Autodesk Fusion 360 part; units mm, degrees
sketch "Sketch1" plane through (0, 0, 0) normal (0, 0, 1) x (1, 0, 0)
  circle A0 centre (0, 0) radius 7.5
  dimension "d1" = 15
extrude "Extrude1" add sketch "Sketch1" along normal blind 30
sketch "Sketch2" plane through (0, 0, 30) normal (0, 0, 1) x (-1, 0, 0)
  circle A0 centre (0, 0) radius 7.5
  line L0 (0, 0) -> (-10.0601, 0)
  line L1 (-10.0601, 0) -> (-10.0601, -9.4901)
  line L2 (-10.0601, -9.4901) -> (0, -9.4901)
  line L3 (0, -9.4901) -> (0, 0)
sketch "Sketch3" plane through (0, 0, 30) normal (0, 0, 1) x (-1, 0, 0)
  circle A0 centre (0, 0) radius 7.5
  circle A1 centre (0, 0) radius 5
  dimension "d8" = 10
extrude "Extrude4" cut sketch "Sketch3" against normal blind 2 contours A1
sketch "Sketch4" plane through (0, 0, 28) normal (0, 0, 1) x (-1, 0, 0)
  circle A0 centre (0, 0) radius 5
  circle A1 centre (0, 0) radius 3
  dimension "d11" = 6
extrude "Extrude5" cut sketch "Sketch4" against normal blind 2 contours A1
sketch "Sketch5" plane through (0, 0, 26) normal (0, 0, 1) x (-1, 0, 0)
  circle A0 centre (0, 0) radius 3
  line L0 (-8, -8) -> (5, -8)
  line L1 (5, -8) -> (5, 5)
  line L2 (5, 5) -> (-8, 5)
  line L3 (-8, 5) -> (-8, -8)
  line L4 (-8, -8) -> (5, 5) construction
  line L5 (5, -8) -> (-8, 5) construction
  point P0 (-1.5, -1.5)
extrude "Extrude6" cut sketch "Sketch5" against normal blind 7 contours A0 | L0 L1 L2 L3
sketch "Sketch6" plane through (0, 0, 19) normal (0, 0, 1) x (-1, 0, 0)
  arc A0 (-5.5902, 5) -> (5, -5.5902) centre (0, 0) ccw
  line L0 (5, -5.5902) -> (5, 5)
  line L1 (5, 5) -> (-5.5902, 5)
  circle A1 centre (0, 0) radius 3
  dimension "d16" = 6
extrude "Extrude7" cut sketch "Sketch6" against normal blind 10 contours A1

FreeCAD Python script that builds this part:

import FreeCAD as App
import Part
import Sketcher

V = App.Vector
Q = App.Units.Quantity

doc = App.newDocument("Part")
body = doc.addObject("PartDesign::Body", "Body")

# Sketch on XY plane
sketch1 = doc.addObject("Sketcher::SketchObject", "Sketch")
body.addObject(sketch1)
sketch1.AttachmentSupport = (doc.XY_Plane, [""])
sketch1.MapMode = "FlatFace"
sketch1.addGeometry(Part.Circle(V(0, 0, 0), V(0, 0, 1), 8), False)
sketch1.addConstraint([
    Sketcher.Constraint("Coincident", 0, 3, -1, 1),
    Sketcher.Constraint("Diameter", 0, Q("15 mm")),
])
pad1 = doc.addObject("PartDesign::Pad", "Pad")
body.addObject(pad1)
pad1.Profile = sketch1
pad1.Length = 30

# Sketch on XY plane
sketch2 = doc.addObject("Sketcher::SketchObject", "Sketch001")
body.addObject(sketch2)
sketch2.AttachmentSupport = (doc.XY_Plane, [""])
sketch2.MapMode = "FlatFace"
sketch2.AttachmentOffset = App.Placement(V(0, 0, 30), App.Rotation())
sketch2.addGeometry(Part.Circle(V(0, 0, 0), V(0, 0, 1), 5), False)
sketch2.addConstraint([
    Sketcher.Constraint("Coincident", 0, 3, -1, 1),
    Sketcher.Constraint("Diameter", 0, Q("10 mm")),
])
pocket1 = doc.addObject("PartDesign::Pocket", "Pocket")
body.addObject(pocket1)
pocket1.Profile = sketch2
pocket1.Length = 2

# Sketch on XY plane
sketch3 = doc.addObject("Sketcher::SketchObject", "Sketch002")
body.addObject(sketch3)
sketch3.AttachmentSupport = (doc.XY_Plane, [""])
sketch3.MapMode = "FlatFace"
sketch3.AttachmentOffset = App.Placement(V(0, 0, 28), App.Rotation())
sketch3.addGeometry(Part.Circle(V(0, 0, 0), V(0, 0, 1), 3), False)
sketch3.addConstraint([
    Sketcher.Constraint("Coincident", 0, 3, -1, 1),
    Sketcher.Constraint("Diameter", 0, Q("6 mm")),
])
pocket2 = doc.addObject("PartDesign::Pocket", "Pocket001")
body.addObject(pocket2)
pocket2.Profile = sketch3
pocket2.Length = 2

# Sketch on XY plane
sketch4 = doc.addObject("Sketcher::SketchObject", "Sketch003")
body.addObject(sketch4)
sketch4.AttachmentSupport = (doc.XY_Plane, [""])
sketch4.MapMode = "FlatFace"
sketch4.AttachmentOffset = App.Placement(V(0, 0, 26), App.Rotation())
sketch4.addGeometry([
    Part.LineSegment(V(8, -5, 0), V(8, 8, 0)),
    Part.LineSegment(V(8, 8, 0), V(-5, 8, 0)),
    Part.LineSegment(V(-5, 8, 0), V(-5, -5, 0)),
    Part.LineSegment(V(-5, -5, 0), V(8, -5, 0)),
], False)
sketch4.addConstraint([
    Sketcher.Constraint("Coincident", 0, 2, 1, 1),
    Sketcher.Constraint("Coincident", 1, 2, 2, 1),
    Sketcher.Constraint("Coincident", 2, 2, 3, 1),
    Sketcher.Constraint("Coincident", 3, 2, 0, 1),
    Sketcher.Constraint("Vertical", 0),
    Sketcher.Constraint("Horizontal", 1),
    Sketcher.Constraint("Vertical", 2),
    Sketcher.Constraint("Horizontal", 3),
    Sketcher.Constraint("Equal", 3, 0),
    Sketcher.Constraint("DistanceX", 1, 2, 1, 1, Q("13 mm")),
    Sketcher.Constraint("DistanceX", -1, 1, 0, 2, Q("8 mm")),
    Sketcher.Constraint("DistanceY", -1, 1, 0, 2, Q("8 mm")),
])
pocket3 = doc.addObject("PartDesign::Pocket", "Pocket002")
body.addObject(pocket3)
pocket3.Profile = sketch4
pocket3.Length = 7

# Sketch on XY plane
sketch5 = doc.addObject("Sketcher::SketchObject", "Sketch004")
body.addObject(sketch5)
sketch5.AttachmentSupport = (doc.XY_Plane, [""])
sketch5.MapMode = "FlatFace"
sketch5.AttachmentOffset = App.Placement(V(0, 0, 19), App.Rotation())
sketch5.addGeometry(Part.Circle(V(0, 0, 0), V(0, 0, 1), 3), False)
sketch5.addConstraint([
    Sketcher.Constraint("Coincident", 0, 3, -1, 1),
    Sketcher.Constraint("Diameter", 0, Q("6 mm")),
])
pocket4 = doc.addObject("PartDesign::Pocket", "Pocket003")
body.addObject(pocket4)
pocket4.Profile = sketch5
pocket4.Length = 10

doc.recompute()
